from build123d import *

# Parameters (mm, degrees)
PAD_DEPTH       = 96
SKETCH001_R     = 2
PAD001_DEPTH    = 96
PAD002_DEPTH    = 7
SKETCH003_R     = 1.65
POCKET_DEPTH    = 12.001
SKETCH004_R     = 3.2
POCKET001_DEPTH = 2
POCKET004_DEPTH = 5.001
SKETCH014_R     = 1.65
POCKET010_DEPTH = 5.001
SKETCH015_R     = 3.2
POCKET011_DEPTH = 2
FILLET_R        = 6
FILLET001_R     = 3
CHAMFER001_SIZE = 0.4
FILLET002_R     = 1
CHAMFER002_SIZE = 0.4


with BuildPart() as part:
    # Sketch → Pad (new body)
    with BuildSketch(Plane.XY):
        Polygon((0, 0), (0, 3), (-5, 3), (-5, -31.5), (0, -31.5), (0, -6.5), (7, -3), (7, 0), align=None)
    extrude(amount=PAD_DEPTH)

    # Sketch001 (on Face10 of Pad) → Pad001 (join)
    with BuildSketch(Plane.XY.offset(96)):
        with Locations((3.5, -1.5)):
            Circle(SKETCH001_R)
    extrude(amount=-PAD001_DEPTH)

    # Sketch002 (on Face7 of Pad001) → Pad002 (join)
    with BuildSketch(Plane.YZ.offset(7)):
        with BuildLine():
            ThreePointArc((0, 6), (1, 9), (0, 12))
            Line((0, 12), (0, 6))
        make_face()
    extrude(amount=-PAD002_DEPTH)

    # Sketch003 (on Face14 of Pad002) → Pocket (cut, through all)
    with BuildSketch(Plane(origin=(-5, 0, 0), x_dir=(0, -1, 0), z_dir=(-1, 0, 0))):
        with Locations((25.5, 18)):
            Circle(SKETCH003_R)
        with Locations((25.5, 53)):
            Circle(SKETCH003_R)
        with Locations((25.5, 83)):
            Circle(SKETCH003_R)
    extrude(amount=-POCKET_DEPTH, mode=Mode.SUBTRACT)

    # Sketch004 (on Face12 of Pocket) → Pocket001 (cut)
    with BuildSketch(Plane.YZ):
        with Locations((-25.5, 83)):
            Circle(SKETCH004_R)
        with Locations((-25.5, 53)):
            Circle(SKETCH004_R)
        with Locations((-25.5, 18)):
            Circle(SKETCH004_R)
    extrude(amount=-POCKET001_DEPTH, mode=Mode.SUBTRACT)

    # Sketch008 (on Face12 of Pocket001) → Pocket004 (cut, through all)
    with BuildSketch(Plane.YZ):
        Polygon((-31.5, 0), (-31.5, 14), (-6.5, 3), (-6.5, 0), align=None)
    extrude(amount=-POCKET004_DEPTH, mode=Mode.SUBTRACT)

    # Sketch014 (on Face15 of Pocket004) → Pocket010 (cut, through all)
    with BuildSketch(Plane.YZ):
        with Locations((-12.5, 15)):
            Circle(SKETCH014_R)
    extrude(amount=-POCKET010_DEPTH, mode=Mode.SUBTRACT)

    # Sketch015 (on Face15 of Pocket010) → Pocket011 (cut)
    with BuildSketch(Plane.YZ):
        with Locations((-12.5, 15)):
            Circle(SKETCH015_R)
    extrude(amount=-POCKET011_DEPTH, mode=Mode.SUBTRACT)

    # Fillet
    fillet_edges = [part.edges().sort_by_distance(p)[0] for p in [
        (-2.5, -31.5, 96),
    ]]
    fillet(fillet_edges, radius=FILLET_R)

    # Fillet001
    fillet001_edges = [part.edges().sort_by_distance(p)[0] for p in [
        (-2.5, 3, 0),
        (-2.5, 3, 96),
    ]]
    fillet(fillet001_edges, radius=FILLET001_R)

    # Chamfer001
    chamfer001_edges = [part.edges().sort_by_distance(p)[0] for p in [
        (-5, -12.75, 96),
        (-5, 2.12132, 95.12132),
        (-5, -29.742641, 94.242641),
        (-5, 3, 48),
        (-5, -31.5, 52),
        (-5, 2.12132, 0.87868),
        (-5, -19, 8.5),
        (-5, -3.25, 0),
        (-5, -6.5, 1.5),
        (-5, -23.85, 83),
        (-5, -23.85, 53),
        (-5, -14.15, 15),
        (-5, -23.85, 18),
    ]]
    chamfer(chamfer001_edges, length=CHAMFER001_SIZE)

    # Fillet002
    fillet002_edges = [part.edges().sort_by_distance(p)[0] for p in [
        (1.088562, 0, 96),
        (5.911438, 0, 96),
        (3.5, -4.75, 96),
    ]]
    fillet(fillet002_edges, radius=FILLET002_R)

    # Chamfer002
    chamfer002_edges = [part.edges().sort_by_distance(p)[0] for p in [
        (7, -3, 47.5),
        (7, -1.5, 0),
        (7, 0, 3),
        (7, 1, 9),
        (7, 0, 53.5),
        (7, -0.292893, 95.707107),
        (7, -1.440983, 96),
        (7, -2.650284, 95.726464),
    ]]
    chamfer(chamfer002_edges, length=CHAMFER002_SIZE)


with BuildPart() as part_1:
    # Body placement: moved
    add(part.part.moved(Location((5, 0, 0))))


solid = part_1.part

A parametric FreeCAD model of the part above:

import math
import FreeCAD as App
import Part
import Sketcher
from FreeCAD import Vector


def edges_at(feature, points):
    """Names of the edges that pass closest to the given points."""
    edges = feature.Shape.Edges
    near = lambda p: min(range(len(edges)), key=lambda i: edges[i].distToShape(Part.Vertex(*p))[0])
    return sorted({f"Edge{near(p) + 1}" for p in points})


def add_polygon(sketch, points):
    """Adds a closed chain of lines whose ends are joined by coincident constraints."""
    first, n = sketch.GeometryCount, len(points)
    for a, b in zip(points, points[1:] + points[:1]):
        sketch.addGeometry(Part.LineSegment(App.Vector(*a, 0), App.Vector(*b, 0)), False)
    for i in range(n):
        sketch.addConstraint(Sketcher.Constraint("Coincident", first + i, 2, first + (i + 1) % n, 1))

doc = App.newDocument("Part")
body = doc.addObject("PartDesign::Body", "Body")

sketch1 = doc.addObject("Sketcher::SketchObject", "Sketch")
body.addObject(sketch1)
sketch1.AttachmentSupport = (doc.XY_Plane, [""])
sketch1.MapMode = "FlatFace"
add_polygon(sketch1, [(0, 0), (0, 3), (-5, 3), (-5, -31.5), (0, -31.5), (0, -6.5), (7, -3), (7, 0)])
sketch1.addConstraint(Sketcher.Constraint("Vertical", 0))
sketch1.addConstraint(Sketcher.Constraint("Horizontal", 1))
sketch1.addConstraint(Sketcher.Constraint("Vertical", 2))
sketch1.addConstraint(Sketcher.Constraint("Horizontal", 3))
sketch1.addConstraint(Sketcher.Constraint("Vertical", 4))
sketch1.addConstraint(Sketcher.Constraint("Vertical", 6))
sketch1.addConstraint(Sketcher.Constraint("Horizontal", 7))
sketch1.addConstraint(Sketcher.Constraint("Coincident", 7, 2, -1, 1))
sketch1.addConstraint(Sketcher.Constraint("PointOnObject", 3, 2, -2))
sketch1.addConstraint(Sketcher.Constraint("Equal", 0, 6))
sketch1.addConstraint(Sketcher.Constraint("DistanceX", 1, 2, 1, 1, 5.0))
sketch1.addConstraint(Sketcher.Constraint("DistanceX", 7, 2, 7, 1, 7.0))
sketch1.addConstraint(Sketcher.Constraint("DistanceY", 0, 1, 0, 2, 3.0))
sketch1.addConstraint(Sketcher.Constraint("DistanceY", 4, 1, 4, 2, 25.0))
sketch1.addConstraint(Sketcher.Constraint("DistanceY", 2, 2, 2, 1, 34.5))
pad1 = doc.addObject("PartDesign::Pad", "Pad")
body.addObject(pad1)
pad1.Profile = sketch1
pad1.Length = 96

sketch2 = doc.addObject("Sketcher::SketchObject", "Sketch001")
body.addObject(sketch2)
sketch2.AttachmentSupport = (doc.XY_Plane, [""])
sketch2.MapMode = "FlatFace"
sketch2.AttachmentOffset = App.Placement(Vector(0, 0, 96), App.Rotation())
sketch2.addGeometry(Part.Circle(Vector(3.5, -1.5, 0), Vector(0, 0, 1), 2), False)
sketch2.addConstraint(Sketcher.Constraint("Diameter", 0, 4.0))
sketch2.addConstraint(Sketcher.Constraint("DistanceX", -1, 1, 0, 3, 3.5))
sketch2.addConstraint(Sketcher.Constraint("DistanceY", 0, 3, -1, 1, 1.5))
pad2 = doc.addObject("PartDesign::Pad", "Pad001")
body.addObject(pad2)
pad2.Profile = sketch2
pad2.Length = 96
pad2.Reversed = True

sketch3 = doc.addObject("Sketcher::SketchObject", "Sketch002")
body.addObject(sketch3)
sketch3.AttachmentSupport = (doc.YZ_Plane, [""])
sketch3.MapMode = "FlatFace"
sketch3.AttachmentOffset = App.Placement(Vector(0, 0, 7), App.Rotation())
sketch3.addGeometry(Part.ArcOfCircle(Part.Circle(Vector(-4, 9, 0), Vector(0, 0, 1), 5), math.radians(-37), math.radians(37)), False)
sketch3.addGeometry(Part.LineSegment(Vector(0, 12, 0), Vector(0, 6, 0)), False)
sketch3.addConstraint(Sketcher.Constraint("Coincident", 0, 1, 1, 2))
sketch3.addConstraint(Sketcher.Constraint("Coincident", 1, 1, 0, 2))
sketch3.addConstraint(Sketcher.Constraint("Vertical", 1))
sketch3.addConstraint(Sketcher.Constraint("PointOnObject", 0, 1, -2))
sketch3.addConstraint(Sketcher.Constraint("Radius", 0, 5.0))
sketch3.addConstraint(Sketcher.Constraint("DistanceY", 1, 2, 1, 1, 6.0))
sketch3.addConstraint(Sketcher.Constraint("DistanceY", -1, 1, 0, 3, 9.0))
pad3 = doc.addObject("PartDesign::Pad", "Pad002")
body.addObject(pad3)
pad3.Profile = sketch3
pad3.Length = 7
pad3.Reversed = True

sketch4 = doc.addObject("Sketcher::SketchObject", "Sketch003")
body.addObject(sketch4)
sketch4.AttachmentSupport = (doc.YZ_Plane, [""])
sketch4.MapMode = "FlatFace"
sketch4.AttachmentOffset = App.Placement(Vector(0, 0, -5), App.Rotation())
sketch4.addGeometry(Part.Circle(Vector(-25.5, 18, 0), Vector(0, 0, 1), 1.6), False)
sketch4.addGeometry(Part.Circle(Vector(-25.5, 53, 0), Vector(0, 0, 1), 1.6), False)
sketch4.addGeometry(Part.Circle(Vector(-25.5, 83, 0), Vector(0, 0, 1), 1.6), False)
sketch4.addConstraint(Sketcher.Constraint("Equal", 0, 1))
sketch4.addConstraint(Sketcher.Constraint("Equal", 1, 2))
sketch4.addConstraint(Sketcher.Constraint("Vertical", 0, 3, 1, 3))
sketch4.addConstraint(Sketcher.Constraint("Vertical", 1, 3, 2, 3))
sketch4.addConstraint(Sketcher.Constraint("Diameter", 0, 3.3))
sketch4.addConstraint(Sketcher.Constraint("DistanceY", -1, 1, 0, 3, 18.0))
sketch4.addConstraint(Sketcher.Constraint("DistanceY", -1, 1, 1, 3, 53.0))
sketch4.addConstraint(Sketcher.Constraint("DistanceY", -1, 1, 2, 3, 83.0))
sketch4.addConstraint(Sketcher.Constraint("DistanceX", 0, 3, -1, 1, 25.5))
pocket1 = doc.addObject("PartDesign::Pocket", "Pocket")
body.addObject(pocket1)
pocket1.Profile = sketch4
pocket1.Type = "ThroughAll"
pocket1.Reversed = True

sketch5 = doc.addObject("Sketcher::SketchObject", "Sketch004")
body.addObject(sketch5)
sketch5.AttachmentSupport = (doc.YZ_Plane, [""])
sketch5.MapMode = "FlatFace"
sketch5.addGeometry(Part.Circle(Vector(-25.5, 83, 0), Vector(0, 0, 1), 3.2), False)
sketch5.addGeometry(Part.Circle(Vector(-25.5, 53, 0), Vector(0, 0, 1), 3.2), False)
sketch5.addGeometry(Part.Circle(Vector(-25.5, 18, 0), Vector(0, 0, 1), 3.2), False)
sketch5.addConstraint(Sketcher.Constraint("Equal", 0, 1))
sketch5.addConstraint(Sketcher.Constraint("Equal", 1, 2))
sketch5.addConstraint(Sketcher.Constraint("Vertical", 0, 3, 1, 3))
sketch5.addConstraint(Sketcher.Constraint("Vertical", 1, 3, 2, 3))
sketch5.addConstraint(Sketcher.Constraint("Diameter", 0, 6.4))
sketch5.addConstraint(Sketcher.Constraint("DistanceY", -1, 1, 0, 3, 83.0))
sketch5.addConstraint(Sketcher.Constraint("DistanceY", -1, 1, 1, 3, 53.0))
sketch5.addConstraint(Sketcher.Constraint("DistanceY", -1, 1, 2, 3, 18.0))
sketch5.addConstraint(Sketcher.Constraint("DistanceX", 0, 3, -1, 1, 25.5))
pocket2 = doc.addObject("PartDesign::Pocket", "Pocket001")
body.addObject(pocket2)
pocket2.Profile = sketch5
pocket2.Length = 2

sketch6 = doc.addObject("Sketcher::SketchObject", "Sketch005")
body.addObject(sketch6)
sketch6.AttachmentSupport = (doc.YZ_Plane, [""])
sketch6.MapMode = "FlatFace"
add_polygon(sketch6, [(-31.5, 14), (-31.5, 0), (-6.5, 0), (-6.5, 3)])
sketch6.addConstraint(Sketcher.Constraint("Vertical", 0))
sketch6.addConstraint(Sketcher.Constraint("Horizontal", 1))
sketch6.addConstraint(Sketcher.Constraint("Vertical", 2))
sketch6.addConstraint(Sketcher.Constraint("PointOnObject", 0, 2, -1))
sketch6.addConstraint(Sketcher.Constraint("DistanceX", 1, 1, 1, 2, 25.0))
sketch6.addConstraint(Sketcher.Constraint("DistanceY", 0, 2, 0, 1, 14.0))
sketch6.addConstraint(Sketcher.Constraint("DistanceY", 2, 1, 2, 2, 3.0))
sketch6.addConstraint(Sketcher.Constraint("DistanceX", 0, 2, -1, 1, 31.5))
pocket3 = doc.addObject("PartDesign::Pocket", "Pocket002")
body.addObject(pocket3)
pocket3.Profile = sketch6
pocket3.Type = "ThroughAll"

sketch7 = doc.addObject("Sketcher::SketchObject", "Sketch006")
body.addObject(sketch7)
sketch7.AttachmentSupport = (doc.YZ_Plane, [""])
sketch7.MapMode = "FlatFace"
sketch7.addGeometry(Part.Circle(Vector(-12.5, 15, 0), Vector(0, 0, 1), 1.6), False)
sketch7.addConstraint(Sketcher.Constraint("Diameter", 0, 3.3))
sketch7.addConstraint(Sketcher.Constraint("DistanceY", -1, 1, 0, 3, 15.0))
sketch7.addConstraint(Sketcher.Constraint("DistanceX", 0, 3, -1, 1, 12.5))
pocket4 = doc.addObject("PartDesign::Pocket", "Pocket003")
body.addObject(pocket4)
pocket4.Profile = sketch7
pocket4.Type = "ThroughAll"

sketch8 = doc.addObject("Sketcher::SketchObject", "Sketch007")
body.addObject(sketch8)
sketch8.AttachmentSupport = (doc.YZ_Plane, [""])
sketch8.MapMode = "FlatFace"
sketch8.addGeometry(Part.Circle(Vector(-12.5, 15, 0), Vector(0, 0, 1), 3.2), False)
sketch8.addConstraint(Sketcher.Constraint("Diameter", 0, 6.4))
sketch8.addConstraint(Sketcher.Constraint("DistanceY", -1, 1, 0, 3, 15.0))
sketch8.addConstraint(Sketcher.Constraint("DistanceX", 0, 3, -1, 1, 12.5))
pocket5 = doc.addObject("PartDesign::Pocket", "Pocket004")
body.addObject(pocket5)
pocket5.Profile = sketch8
pocket5.Length = 2
doc.recompute()

fillet = doc.addObject("PartDesign::Fillet", "Fillet")
body.addObject(fillet)
fillet.Base = (pocket5, edges_at(pocket5, [(-2.5, -31.5, 96)]))
fillet.Radius = 6
doc.recompute()

fillet2 = doc.addObject("PartDesign::Fillet", "Fillet001")
body.addObject(fillet2)
fillet2.Base = (fillet, edges_at(fillet, [(-2.5, 3, 0), (-2.5, 3, 96)]))
fillet2.Radius = 3
doc.recompute()

chamfer = doc.addObject("PartDesign::Chamfer", "Chamfer")
body.addObject(chamfer)
chamfer.Base = (fillet2, edges_at(fillet2, [
    (-5, -12.75, 96),
    (-5, 2.121, 95.121),
    (-5, -29.743, 94.243),
    (-5, 3, 48),
    (-5, -31.5, 52),
    (-5, 2.121, 0.879),
    (-5, -19, 8.5),
    (-5, -3.25, 0),
    (-5, -6.5, 1.5),
    (-5, -23.85, 83),
    (-5, -23.85, 53),
    (-5, -14.15, 15),
    (-5, -23.85, 18),
]))
chamfer.Size = 0.4
doc.recompute()

fillet3 = doc.addObject("PartDesign::Fillet", "Fillet002")
body.addObject(fillet3)
fillet3.Base = (chamfer, edges_at(chamfer, [(1.089, 0, 96), (5.911, 0, 96), (3.5, -4.75, 96)]))
fillet3.Radius = 1
doc.recompute()

chamfer2 = doc.addObject("PartDesign::Chamfer", "Chamfer001")
body.addObject(chamfer2)
chamfer2.Base = (fillet3, edges_at(fillet3, [
    (7, -3, 47.5),
    (7, -1.5, 0),
    (7, 0, 3),
    (7, 1, 9),
    (7, 0, 53.5),
    (7, -0.293, 95.707),
    (7, -1.441, 96),
    (7, -2.65, 95.726),
]))
chamfer2.Size = 0.4
body2 = doc.addObject("PartDesign::Body", "Body001")
doc.recompute()

body.Placement = App.Placement(Vector(5, 0, 0), App.Rotation(Vector(0, 0, 1), 0))
boolean = doc.addObject("PartDesign::Boolean", "Boolean")
body2.addObject(boolean)
boolean.Type = "Fuse"
boolean.addObjects([body])

doc.recompute()
